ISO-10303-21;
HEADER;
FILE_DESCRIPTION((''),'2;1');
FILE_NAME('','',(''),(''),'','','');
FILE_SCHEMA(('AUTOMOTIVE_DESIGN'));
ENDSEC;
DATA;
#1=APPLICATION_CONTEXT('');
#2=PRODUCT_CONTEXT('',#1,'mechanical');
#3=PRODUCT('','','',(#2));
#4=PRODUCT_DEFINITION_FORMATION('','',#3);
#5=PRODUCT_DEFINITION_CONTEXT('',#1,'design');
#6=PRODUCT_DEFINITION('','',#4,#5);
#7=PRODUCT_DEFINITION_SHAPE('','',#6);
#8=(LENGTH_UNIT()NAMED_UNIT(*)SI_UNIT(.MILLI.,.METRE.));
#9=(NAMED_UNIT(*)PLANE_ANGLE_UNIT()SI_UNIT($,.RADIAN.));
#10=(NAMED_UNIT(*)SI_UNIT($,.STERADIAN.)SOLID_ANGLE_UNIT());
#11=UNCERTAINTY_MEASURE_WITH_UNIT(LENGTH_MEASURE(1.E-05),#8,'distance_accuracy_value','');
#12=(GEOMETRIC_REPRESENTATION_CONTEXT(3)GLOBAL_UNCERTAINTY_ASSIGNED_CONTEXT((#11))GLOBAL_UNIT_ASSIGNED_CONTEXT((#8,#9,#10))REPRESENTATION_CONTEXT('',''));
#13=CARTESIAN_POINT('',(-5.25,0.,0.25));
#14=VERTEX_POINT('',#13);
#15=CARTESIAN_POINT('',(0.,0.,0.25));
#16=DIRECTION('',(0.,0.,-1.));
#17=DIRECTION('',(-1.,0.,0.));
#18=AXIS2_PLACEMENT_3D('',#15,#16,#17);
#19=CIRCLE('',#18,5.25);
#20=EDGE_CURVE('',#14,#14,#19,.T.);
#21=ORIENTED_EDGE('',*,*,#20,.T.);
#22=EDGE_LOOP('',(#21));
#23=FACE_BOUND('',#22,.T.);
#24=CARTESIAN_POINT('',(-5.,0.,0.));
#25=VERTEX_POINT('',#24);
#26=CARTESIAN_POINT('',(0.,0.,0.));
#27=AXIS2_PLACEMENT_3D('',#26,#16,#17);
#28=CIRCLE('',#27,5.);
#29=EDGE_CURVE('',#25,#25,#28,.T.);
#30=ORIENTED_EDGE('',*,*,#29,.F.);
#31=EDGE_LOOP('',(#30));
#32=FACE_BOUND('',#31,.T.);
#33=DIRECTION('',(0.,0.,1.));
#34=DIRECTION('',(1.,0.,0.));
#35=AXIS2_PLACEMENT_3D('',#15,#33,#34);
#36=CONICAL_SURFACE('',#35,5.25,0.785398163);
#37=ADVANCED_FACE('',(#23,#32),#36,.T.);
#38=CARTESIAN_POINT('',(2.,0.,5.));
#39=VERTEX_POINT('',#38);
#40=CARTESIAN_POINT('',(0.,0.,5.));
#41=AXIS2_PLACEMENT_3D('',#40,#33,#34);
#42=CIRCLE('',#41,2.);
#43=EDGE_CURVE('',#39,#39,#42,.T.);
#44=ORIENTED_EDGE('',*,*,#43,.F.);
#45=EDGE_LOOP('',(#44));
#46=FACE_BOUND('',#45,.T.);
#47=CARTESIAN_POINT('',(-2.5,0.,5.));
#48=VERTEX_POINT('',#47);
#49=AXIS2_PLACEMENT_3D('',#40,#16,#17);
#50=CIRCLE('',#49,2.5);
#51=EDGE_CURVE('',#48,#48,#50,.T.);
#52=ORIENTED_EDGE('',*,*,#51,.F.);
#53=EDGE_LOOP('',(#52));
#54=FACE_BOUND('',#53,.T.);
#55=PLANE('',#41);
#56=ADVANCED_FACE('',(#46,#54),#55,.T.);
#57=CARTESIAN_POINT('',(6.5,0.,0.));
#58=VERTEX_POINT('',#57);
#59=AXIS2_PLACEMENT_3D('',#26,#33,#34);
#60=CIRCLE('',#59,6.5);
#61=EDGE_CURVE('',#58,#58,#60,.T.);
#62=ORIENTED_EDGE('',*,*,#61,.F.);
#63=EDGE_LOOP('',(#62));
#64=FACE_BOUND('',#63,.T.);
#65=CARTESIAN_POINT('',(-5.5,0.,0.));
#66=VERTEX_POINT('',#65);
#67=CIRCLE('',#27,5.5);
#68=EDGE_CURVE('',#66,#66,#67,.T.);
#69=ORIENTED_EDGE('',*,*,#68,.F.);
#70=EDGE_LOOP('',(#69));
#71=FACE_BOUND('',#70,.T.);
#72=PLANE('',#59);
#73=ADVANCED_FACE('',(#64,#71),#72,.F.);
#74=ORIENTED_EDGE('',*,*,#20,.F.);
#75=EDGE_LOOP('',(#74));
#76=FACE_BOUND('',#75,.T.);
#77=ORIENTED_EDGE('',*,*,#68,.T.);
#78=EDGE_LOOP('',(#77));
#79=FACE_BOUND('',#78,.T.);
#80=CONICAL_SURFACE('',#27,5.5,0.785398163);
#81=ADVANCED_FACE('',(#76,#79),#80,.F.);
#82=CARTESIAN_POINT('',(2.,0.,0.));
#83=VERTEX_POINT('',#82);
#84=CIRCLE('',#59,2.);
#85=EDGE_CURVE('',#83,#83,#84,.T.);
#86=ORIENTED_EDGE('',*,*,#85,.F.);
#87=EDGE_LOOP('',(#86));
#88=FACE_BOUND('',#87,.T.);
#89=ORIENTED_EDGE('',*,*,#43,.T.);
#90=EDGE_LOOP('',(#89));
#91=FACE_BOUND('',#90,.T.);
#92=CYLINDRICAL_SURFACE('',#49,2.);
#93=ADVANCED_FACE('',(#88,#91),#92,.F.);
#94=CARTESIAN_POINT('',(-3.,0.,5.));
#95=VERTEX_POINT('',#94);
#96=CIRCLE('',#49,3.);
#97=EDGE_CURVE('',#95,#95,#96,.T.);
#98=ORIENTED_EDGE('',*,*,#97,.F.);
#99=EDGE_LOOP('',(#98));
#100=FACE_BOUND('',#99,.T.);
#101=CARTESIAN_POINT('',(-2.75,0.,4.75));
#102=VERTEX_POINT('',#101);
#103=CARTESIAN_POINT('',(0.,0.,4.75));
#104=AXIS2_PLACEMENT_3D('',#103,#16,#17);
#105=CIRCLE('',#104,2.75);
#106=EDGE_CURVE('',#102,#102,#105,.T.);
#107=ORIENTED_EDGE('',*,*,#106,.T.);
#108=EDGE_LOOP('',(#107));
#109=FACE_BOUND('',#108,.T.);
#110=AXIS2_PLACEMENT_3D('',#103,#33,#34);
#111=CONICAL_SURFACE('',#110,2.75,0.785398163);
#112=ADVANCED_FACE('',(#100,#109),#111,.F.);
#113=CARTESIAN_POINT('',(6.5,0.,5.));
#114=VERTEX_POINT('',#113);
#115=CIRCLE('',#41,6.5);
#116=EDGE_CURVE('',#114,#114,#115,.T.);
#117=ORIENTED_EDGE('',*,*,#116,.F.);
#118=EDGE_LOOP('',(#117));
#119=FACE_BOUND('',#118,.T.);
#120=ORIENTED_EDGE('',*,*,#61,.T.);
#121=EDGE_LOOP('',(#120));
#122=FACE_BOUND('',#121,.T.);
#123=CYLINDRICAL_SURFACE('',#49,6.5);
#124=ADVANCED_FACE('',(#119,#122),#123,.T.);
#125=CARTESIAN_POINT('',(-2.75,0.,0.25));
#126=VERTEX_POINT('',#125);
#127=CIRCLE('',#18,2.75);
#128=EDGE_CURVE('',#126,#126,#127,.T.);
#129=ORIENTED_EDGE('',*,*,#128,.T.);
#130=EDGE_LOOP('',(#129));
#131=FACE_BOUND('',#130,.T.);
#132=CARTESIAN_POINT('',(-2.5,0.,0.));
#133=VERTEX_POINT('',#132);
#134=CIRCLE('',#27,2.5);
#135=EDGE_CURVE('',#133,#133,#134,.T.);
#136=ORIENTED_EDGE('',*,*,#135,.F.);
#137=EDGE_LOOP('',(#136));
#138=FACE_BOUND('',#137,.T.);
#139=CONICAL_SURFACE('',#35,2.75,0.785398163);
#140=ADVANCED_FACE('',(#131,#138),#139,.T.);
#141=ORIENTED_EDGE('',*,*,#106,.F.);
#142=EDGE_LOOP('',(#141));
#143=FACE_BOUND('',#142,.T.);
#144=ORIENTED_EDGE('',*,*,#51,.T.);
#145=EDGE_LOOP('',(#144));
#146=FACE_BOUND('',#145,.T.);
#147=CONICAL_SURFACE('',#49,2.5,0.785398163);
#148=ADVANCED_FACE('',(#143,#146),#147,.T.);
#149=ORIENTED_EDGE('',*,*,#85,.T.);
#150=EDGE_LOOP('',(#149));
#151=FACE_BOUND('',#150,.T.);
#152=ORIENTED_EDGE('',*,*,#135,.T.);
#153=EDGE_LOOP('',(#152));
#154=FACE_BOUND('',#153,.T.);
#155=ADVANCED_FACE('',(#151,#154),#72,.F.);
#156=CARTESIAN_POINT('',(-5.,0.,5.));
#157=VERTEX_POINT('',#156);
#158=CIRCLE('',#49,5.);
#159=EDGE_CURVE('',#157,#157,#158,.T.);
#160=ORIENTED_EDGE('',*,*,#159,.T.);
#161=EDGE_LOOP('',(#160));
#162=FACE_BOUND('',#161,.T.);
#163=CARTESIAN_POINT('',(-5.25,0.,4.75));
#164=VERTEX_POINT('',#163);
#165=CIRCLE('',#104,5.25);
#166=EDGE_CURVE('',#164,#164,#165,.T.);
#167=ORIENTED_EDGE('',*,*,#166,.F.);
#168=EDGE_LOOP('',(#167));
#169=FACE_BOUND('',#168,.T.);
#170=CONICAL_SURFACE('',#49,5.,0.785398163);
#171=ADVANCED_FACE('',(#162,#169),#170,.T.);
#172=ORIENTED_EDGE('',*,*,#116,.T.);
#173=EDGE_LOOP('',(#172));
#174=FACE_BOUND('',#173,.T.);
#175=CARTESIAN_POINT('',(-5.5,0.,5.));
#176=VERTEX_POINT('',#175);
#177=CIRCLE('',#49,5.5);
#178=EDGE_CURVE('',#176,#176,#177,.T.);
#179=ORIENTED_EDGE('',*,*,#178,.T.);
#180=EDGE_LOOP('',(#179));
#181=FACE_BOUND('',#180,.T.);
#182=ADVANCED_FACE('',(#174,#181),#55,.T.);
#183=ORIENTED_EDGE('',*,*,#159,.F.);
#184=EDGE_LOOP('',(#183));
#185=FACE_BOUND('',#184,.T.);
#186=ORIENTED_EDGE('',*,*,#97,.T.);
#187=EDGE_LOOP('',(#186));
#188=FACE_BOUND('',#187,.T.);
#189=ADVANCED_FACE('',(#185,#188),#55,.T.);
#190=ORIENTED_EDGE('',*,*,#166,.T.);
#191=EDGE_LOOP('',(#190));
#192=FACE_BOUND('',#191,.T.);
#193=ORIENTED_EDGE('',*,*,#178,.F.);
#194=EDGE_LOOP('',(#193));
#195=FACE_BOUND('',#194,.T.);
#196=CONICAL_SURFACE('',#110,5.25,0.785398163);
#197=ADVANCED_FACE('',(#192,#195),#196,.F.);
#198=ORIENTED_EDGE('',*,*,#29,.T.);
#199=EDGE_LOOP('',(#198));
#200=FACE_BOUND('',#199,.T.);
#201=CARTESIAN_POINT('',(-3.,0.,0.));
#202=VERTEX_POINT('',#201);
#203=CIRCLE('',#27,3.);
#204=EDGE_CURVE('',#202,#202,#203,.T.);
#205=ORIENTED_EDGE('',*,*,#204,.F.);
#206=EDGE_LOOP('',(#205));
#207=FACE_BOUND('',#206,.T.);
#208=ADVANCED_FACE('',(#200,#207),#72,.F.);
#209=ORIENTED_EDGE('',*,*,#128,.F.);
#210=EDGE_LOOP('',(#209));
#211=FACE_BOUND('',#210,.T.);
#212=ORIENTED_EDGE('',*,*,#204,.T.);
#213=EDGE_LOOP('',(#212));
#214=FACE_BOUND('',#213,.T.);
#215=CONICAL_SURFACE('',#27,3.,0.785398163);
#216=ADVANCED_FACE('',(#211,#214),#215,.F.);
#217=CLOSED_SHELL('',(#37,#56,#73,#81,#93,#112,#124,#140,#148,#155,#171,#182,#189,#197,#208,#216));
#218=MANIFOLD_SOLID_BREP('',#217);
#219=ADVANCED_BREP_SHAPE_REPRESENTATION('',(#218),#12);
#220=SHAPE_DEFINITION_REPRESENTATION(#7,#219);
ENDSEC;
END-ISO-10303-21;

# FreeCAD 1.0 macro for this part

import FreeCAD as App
import Part
import Sketcher
from FreeCAD import Vector

doc = App.newDocument("Part")
body = doc.addObject("PartDesign::Body", "Body")

# Sketch on XY plane
sketch1 = body.newObject("Sketcher::SketchObject", "Sketch")
sketch1.AttachmentSupport = (doc.getObject("XY_Plane"), [""])
sketch1.MapMode = "FlatFace"
sketch1.addGeometry(Part.Circle(Vector(0, 0, 0), Vector(0, 0, 1), 6.5), False)
sketch1.addGeometry(Part.Circle(Vector(0, 0, 0), Vector(0, 0, 1), 2), False)
sketch1.addConstraint(Sketcher.Constraint("Coincident", 0, 3, -1, 1))
sketch1.addConstraint(Sketcher.Constraint("Coincident", 1, 3, -1, 1))
sketch1.addConstraint(Sketcher.Constraint("Diameter", 0, 13.0))
sketch1.addConstraint(Sketcher.Constraint("Diameter", 1, 4.0))
pad1 = body.newObject("PartDesign::Pad", "Pad")
pad1.Profile = sketch1
pad1.Length = 5

# Sketch on YZ plane
sketch2 = body.newObject("Sketcher::SketchObject", "Sketch001")
sketch2.AttachmentSupport = (doc.getObject("YZ_Plane"), [""])
sketch2.MapMode = "FlatFace"
sketch2.addGeometry(Part.LineSegment(Vector(5.5, 5, 0), Vector(5, 5, 0)), False)
sketch2.addGeometry(Part.LineSegment(Vector(5, 5, 0), Vector(5.25, 4.75, 0)), False)
sketch2.addGeometry(Part.LineSegment(Vector(5.25, 4.75, 0), Vector(5.5, 5, 0)), False)
sketch2.addGeometry(Part.LineSegment(Vector(3, 5, 0), Vector(2.5, 5, 0)), False)
sketch2.addGeometry(Part.LineSegment(Vector(2.5, 5, 0), Vector(2.75, 4.75, 0)), False)
sketch2.addGeometry(Part.LineSegment(Vector(2.75, 4.75, 0), Vector(3, 5, 0)), False)
sketch2.addGeometry(Part.LineSegment(Vector(3, 0, 0), Vector(2.75, 0.25, 0)), False)
sketch2.addGeometry(Part.LineSegment(Vector(2.75, 0.25, 0), Vector(2.5, 0, 0)), False)
sketch2.addGeometry(Part.LineSegment(Vector(2.5, 0, 0), Vector(3, 0, 0)), False)
sketch2.addGeometry(Part.LineSegment(Vector(5.5, 0, 0), Vector(5.25, 0.25, 0)), False)
sketch2.addGeometry(Part.LineSegment(Vector(5.25, 0.25, 0), Vector(5, 0, 0)), False)
sketch2.addGeometry(Part.LineSegment(Vector(5, 0, 0), Vector(5.5, 0, 0)), False)
sketch2.addConstraint(Sketcher.Constraint("Coincident", 0, 2, 1, 1))
sketch2.addConstraint(Sketcher.Constraint("Coincident", 1, 2, 2, 1))
sketch2.addConstraint(Sketcher.Constraint("Coincident", 2, 2, 0, 1))
sketch2.addConstraint(Sketcher.Constraint("Coincident", 3, 2, 4, 1))
sketch2.addConstraint(Sketcher.Constraint("Coincident", 4, 2, 5, 1))
sketch2.addConstraint(Sketcher.Constraint("Coincident", 5, 2, 3, 1))
sketch2.addConstraint(Sketcher.Constraint("Coincident", 6, 2, 7, 1))
sketch2.addConstraint(Sketcher.Constraint("Coincident", 7, 2, 8, 1))
sketch2.addConstraint(Sketcher.Constraint("Coincident", 8, 2, 6, 1))
sketch2.addConstraint(Sketcher.Constraint("Coincident", 9, 2, 10, 1))
sketch2.addConstraint(Sketcher.Constraint("Coincident", 10, 2, 11, 1))
sketch2.addConstraint(Sketcher.Constraint("Coincident", 11, 2, 9, 1))
sketch2.addConstraint(Sketcher.Constraint("Horizontal", 0))
sketch2.addConstraint(Sketcher.Constraint("Horizontal", 3))
sketch2.addConstraint(Sketcher.Constraint("Horizontal", 8))
sketch2.addConstraint(Sketcher.Constraint("Horizontal", 11))
sketch2.addConstraint(Sketcher.Constraint("PointOnObject", 7, 2, -1))
sketch2.addConstraint(Sketcher.Constraint("PointOnObject", 10, 2, -1))
sketch2.addConstraint(Sketcher.Constraint("Perpendicular", 1, 2))
sketch2.addConstraint(Sketcher.Constraint("Perpendicular", 2, 4))
sketch2.addConstraint(Sketcher.Constraint("Perpendicular", 4, 5))
sketch2.addConstraint(Sketcher.Constraint("Perpendicular", 5, 6))
sketch2.addConstraint(Sketcher.Constraint("Perpendicular", 6, 7))
sketch2.addConstraint(Sketcher.Constraint("Perpendicular", 7, 9))
sketch2.addConstraint(Sketcher.Constraint("Perpendicular", 9, 10))
sketch2.addConstraint(Sketcher.Constraint("Horizontal", 2, 2, 3, 2))
sketch2.addConstraint(Sketcher.Constraint("Horizontal", 1, 2, 4, 2))
sketch2.addConstraint(Sketcher.Constraint("Horizontal", 6, 2, 9, 2))
sketch2.addConstraint(Sketcher.Constraint("Vertical", 4, 2, 6, 2))
sketch2.addConstraint(Sketcher.Constraint("Vertical", 3, 2, 7, 2))
sketch2.addConstraint(Sketcher.Constraint("Vertical", 5, 2, 8, 2))
sketch2.addConstraint(Sketcher.Constraint("Vertical", 1, 2, 9, 2))
sketch2.addConstraint(Sketcher.Constraint("DistanceX", 0, 2, 0, 1, 0.5))
sketch2.addConstraint(Sketcher.Constraint("DistanceX", -1, 1, 0, 2, 5.0))
sketch2.addConstraint(Sketcher.Constraint("DistanceY", -1, 1, 0, 2, 5.0))
sketch2.addConstraint(Sketcher.Constraint("DistanceX", -1, 1, 5, 2, 3.0))
groove = body.newObject("PartDesign::Groove", "Groove")
groove.Profile = sketch2
groove.ReferenceAxis = (sketch2, ["V_Axis"])
groove.Angle = 360

doc.recompute()
